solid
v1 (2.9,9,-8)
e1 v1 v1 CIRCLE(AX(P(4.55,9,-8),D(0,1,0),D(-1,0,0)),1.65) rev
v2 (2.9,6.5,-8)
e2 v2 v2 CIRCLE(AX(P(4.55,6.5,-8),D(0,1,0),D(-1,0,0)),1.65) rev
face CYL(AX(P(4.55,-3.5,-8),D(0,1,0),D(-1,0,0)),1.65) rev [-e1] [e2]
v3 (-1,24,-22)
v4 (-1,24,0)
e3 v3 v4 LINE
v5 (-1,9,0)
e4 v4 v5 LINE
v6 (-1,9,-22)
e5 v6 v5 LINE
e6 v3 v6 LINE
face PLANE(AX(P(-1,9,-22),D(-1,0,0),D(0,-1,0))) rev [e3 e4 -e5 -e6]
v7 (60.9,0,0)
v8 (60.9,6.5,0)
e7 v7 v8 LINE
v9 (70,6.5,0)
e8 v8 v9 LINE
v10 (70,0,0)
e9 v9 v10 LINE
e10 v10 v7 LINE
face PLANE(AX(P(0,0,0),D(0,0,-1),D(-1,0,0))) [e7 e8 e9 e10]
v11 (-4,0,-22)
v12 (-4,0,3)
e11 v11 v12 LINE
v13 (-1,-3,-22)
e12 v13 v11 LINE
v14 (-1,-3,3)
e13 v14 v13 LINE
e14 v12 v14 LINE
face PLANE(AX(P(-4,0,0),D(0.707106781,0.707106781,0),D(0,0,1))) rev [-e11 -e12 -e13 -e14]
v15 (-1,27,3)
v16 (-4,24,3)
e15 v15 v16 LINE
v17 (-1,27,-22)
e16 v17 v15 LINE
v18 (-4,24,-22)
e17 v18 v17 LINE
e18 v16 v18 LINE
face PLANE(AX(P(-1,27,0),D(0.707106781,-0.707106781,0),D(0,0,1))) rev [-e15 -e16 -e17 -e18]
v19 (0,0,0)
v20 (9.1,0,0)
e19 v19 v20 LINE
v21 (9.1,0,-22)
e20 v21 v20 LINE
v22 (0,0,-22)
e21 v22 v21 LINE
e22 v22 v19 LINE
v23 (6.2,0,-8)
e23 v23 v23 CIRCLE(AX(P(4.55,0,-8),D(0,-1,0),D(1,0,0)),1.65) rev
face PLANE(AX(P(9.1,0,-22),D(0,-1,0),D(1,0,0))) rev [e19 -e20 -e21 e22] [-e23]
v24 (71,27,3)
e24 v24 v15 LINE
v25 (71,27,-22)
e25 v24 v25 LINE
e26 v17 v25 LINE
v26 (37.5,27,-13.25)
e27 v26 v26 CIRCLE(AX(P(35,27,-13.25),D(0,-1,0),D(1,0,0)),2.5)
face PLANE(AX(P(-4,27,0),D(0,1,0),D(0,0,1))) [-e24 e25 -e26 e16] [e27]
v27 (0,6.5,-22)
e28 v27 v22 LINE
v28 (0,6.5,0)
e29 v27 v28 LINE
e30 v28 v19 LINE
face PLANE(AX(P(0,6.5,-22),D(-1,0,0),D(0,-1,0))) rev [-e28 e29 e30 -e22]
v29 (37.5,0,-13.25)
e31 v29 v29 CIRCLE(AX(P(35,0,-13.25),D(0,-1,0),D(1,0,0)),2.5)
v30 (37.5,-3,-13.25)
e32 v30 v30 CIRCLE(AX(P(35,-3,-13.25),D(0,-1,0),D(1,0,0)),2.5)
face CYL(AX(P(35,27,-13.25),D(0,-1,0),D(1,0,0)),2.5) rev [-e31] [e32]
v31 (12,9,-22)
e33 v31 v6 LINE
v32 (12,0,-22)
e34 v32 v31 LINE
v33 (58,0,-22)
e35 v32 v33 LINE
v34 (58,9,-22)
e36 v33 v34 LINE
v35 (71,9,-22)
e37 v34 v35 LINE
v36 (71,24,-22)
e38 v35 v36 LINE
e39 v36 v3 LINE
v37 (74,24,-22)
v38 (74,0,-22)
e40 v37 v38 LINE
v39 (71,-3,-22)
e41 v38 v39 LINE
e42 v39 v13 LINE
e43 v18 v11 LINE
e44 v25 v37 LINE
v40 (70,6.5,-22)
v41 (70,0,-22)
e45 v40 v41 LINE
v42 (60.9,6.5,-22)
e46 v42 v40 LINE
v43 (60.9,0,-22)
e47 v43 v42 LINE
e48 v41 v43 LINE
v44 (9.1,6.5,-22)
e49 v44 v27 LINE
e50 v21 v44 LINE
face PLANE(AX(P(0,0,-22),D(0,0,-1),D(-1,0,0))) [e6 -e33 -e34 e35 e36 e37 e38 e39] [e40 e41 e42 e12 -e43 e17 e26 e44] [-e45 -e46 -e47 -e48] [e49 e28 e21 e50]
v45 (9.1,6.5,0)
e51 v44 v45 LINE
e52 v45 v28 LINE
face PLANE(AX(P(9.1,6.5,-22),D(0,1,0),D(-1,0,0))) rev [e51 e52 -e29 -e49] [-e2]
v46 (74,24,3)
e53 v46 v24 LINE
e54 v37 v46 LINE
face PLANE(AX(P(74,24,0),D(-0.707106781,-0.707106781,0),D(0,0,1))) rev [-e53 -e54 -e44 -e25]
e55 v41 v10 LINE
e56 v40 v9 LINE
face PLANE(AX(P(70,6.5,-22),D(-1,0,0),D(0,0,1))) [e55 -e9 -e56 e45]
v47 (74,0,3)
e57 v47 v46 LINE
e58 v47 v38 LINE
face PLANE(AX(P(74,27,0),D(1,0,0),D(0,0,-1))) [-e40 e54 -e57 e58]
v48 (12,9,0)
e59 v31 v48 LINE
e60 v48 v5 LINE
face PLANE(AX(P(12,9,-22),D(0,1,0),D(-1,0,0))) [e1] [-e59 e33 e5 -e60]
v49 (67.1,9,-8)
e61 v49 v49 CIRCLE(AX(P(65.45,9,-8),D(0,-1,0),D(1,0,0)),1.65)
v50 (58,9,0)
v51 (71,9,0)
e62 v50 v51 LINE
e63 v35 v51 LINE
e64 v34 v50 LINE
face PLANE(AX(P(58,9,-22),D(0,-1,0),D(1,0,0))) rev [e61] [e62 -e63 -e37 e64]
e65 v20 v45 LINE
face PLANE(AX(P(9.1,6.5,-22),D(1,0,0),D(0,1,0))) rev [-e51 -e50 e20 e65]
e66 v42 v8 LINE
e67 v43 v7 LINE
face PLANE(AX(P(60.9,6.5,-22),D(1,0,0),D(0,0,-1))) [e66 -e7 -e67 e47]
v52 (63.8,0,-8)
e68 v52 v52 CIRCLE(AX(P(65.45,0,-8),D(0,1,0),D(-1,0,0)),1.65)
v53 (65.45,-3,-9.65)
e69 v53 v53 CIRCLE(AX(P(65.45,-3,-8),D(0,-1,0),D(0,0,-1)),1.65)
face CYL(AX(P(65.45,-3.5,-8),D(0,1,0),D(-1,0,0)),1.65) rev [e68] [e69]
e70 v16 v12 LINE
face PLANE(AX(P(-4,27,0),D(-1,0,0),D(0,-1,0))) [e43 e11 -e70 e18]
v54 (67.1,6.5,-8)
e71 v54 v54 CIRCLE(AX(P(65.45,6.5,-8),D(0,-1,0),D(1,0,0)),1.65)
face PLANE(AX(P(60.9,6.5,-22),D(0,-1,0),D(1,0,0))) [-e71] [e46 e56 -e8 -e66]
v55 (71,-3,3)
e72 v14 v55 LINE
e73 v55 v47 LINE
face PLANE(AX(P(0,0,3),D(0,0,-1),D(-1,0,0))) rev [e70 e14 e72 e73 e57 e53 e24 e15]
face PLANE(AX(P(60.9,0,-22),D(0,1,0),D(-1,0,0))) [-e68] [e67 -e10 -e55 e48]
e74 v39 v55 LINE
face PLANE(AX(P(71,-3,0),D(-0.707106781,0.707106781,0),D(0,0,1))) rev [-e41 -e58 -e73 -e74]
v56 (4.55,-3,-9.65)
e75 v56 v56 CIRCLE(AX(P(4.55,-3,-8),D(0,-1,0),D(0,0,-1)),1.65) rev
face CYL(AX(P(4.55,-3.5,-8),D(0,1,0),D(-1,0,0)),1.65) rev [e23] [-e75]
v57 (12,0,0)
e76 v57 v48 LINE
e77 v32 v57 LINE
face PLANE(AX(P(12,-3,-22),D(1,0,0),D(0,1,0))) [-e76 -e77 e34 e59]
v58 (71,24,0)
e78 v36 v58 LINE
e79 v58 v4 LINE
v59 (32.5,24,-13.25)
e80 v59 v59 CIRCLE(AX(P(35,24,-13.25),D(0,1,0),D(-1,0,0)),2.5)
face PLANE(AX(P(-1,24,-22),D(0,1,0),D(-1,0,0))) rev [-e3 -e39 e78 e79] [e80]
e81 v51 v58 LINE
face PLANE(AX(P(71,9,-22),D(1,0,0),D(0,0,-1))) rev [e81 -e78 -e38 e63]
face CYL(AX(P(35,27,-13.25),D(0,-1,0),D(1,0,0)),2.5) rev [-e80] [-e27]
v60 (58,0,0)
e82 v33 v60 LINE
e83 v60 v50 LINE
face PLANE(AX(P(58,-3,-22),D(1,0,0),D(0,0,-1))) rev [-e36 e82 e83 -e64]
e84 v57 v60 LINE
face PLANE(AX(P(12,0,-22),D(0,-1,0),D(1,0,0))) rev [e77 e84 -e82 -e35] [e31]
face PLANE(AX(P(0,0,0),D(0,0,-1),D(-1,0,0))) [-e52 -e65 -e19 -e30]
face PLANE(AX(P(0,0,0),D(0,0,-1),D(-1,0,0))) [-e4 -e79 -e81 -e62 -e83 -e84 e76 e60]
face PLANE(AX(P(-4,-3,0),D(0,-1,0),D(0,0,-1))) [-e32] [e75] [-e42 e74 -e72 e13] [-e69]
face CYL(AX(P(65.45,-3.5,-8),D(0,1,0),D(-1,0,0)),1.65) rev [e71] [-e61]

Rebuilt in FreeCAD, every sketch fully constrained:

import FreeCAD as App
import Part
import Sketcher
Q = App.Units.Quantity


def edges_at(feature, points):
    """Names of the edges that pass closest to the given points."""
    edges = feature.Shape.Edges
    near = lambda p: min(range(len(edges)), key=lambda i: edges[i].distToShape(Part.Vertex(*p))[0])
    return sorted({f"Edge{near(p) + 1}" for p in points})


def add_polygon(sketch, points):
    """Adds a closed chain of lines whose ends are joined by coincident constraints."""
    first, n = sketch.GeometryCount, len(points)
    for a, b in zip(points, points[1:] + points[:1]):
        sketch.addGeometry(Part.LineSegment(App.Vector(*a, 0), App.Vector(*b, 0)), False)
    for i in range(n):
        sketch.addConstraint(Sketcher.Constraint("Coincident", first + i, 2, first + (i + 1) % n, 1))

doc = App.newDocument("Part")
params = doc.addObject("Spreadsheet::Sheet", "Params")
for row, (alias, value) in enumerate([
    ("sketch1_width", "70 mm"),
    ("sketch1_height", "20 mm"),
    ("pad1_length", "3 mm"),
    ("sketch2_width", "78 mm"),
    ("sketch2_height", "30 mm"),
    ("pad2_length", "3 mm"),
    ("sketch3_width", "16 mm"),
    ("sketch3_height", "12 mm"),
    ("sketch3_width2", "9.1 mm"),
    ("sketch3_height2", "6.5 mm"),
    ("pad3_length", "22 mm"),
    ("sketch4_width", "46 mm"),
    ("sketch4_height", "3 mm"),
    ("pad4_length", "22 mm"),
    ("sketch5_width", "78 mm"),
    ("sketch5_width2", "3 mm"),
    ("sketch5_height", "18 mm"),
    ("sketch5_height2", "15 mm"),
    ("pad5_length", "22 mm"),
    ("chamfer_size", "3 mm"),
    ("sketch6_diameter", "5 mm"),
    ("sketch7_diameter", "3.3 mm"),
    ("pocket2_length", "20 mm"),
], start=1):
    params.set(f"A{row}", alias)
    params.set(f"B{row}", "=" + value)
    params.setAlias(f"B{row}", alias)

body = doc.addObject("PartDesign::Body", "Body")

sketch1 = body.newObject("Sketcher::SketchObject", "Sketch")
sketch1.AttachmentSupport = (doc.getObject("XY_Plane"), [""])
sketch1.MapMode = "FlatFace"
add_polygon(sketch1, [(0, 20), (0, 0), (70, 0), (70, 20)])
sketch1.addConstraint(Sketcher.Constraint("Vertical", 0))
sketch1.addConstraint(Sketcher.Constraint("Horizontal", 1))
sketch1.addConstraint(Sketcher.Constraint("Vertical", 2))
sketch1.addConstraint(Sketcher.Constraint("Horizontal", 3))
sketch1.addConstraint(Sketcher.Constraint("Coincident", 0, 2, -1, 1))
sketch1.addConstraint(Sketcher.Constraint("DistanceX", 1, 1, 1, 2, Q("70 mm")))
sketch1.addConstraint(Sketcher.Constraint("DistanceY", 0, 2, 0, 1, Q("20 mm")))
sketch1.setExpression("Constraints[9]", "Params.sketch1_width")
sketch1.setExpression("Constraints[10]", "Params.sketch1_height")
pad1 = body.newObject("PartDesign::Pad", "Pad")
pad1.Profile = sketch1
pad1.setExpression("Length", "Params.pad1_length")

sketch2 = body.newObject("Sketcher::SketchObject", "Sketch001")
sketch2.AttachmentSupport = (doc.getObject("XY_Plane"), [""])
sketch2.MapMode = "FlatFace"
sketch2.AttachmentOffset = App.Placement(App.Vector(0, 0, 3), App.Rotation())
add_polygon(sketch2, [(-4, 27), (-4, -3), (74, -3), (74, 27)])
sketch2.addConstraint(Sketcher.Constraint("Vertical", 0))
sketch2.addConstraint(Sketcher.Constraint("Horizontal", 1))
sketch2.addConstraint(Sketcher.Constraint("Vertical", 2))
sketch2.addConstraint(Sketcher.Constraint("Horizontal", 3))
sketch2.addConstraint(Sketcher.Constraint("DistanceX", 1, 1, 1, 2, Q("78 mm")))
sketch2.addConstraint(Sketcher.Constraint("DistanceY", 0, 2, 0, 1, Q("30 mm")))
sketch2.addConstraint(Sketcher.Constraint("DistanceX", 0, 2, -1, 1, Q("4 mm")))
sketch2.addConstraint(Sketcher.Constraint("DistanceY", 0, 2, -1, 1, Q("3 mm")))
sketch2.setExpression("Constraints[8]", "Params.sketch2_width")
sketch2.setExpression("Constraints[9]", "Params.sketch2_height")
pad2 = body.newObject("PartDesign::Pad", "Pad001")
pad2.Profile = sketch2
pad2.setExpression("Length", "Params.pad2_length")
pad2.Reversed = True

sketch3 = body.newObject("Sketcher::SketchObject", "Sketch002")
sketch3.AttachmentSupport = (doc.getObject("XY_Plane"), [""])
sketch3.MapMode = "FlatFace"
add_polygon(sketch3, [(74, 9), (74, -3), (58, -3), (58, 9)])
add_polygon(sketch3, [(61, 0), (70, 0), (70, 6), (61, 6)])
sketch3.addConstraint(Sketcher.Constraint("Vertical", 0))
sketch3.addConstraint(Sketcher.Constraint("Horizontal", 1))
sketch3.addConstraint(Sketcher.Constraint("Vertical", 2))
sketch3.addConstraint(Sketcher.Constraint("Horizontal", 3))
sketch3.addConstraint(Sketcher.Constraint("Horizontal", 4))
sketch3.addConstraint(Sketcher.Constraint("Vertical", 5))
sketch3.addConstraint(Sketcher.Constraint("Horizontal", 6))
sketch3.addConstraint(Sketcher.Constraint("Vertical", 7))
sketch3.addConstraint(Sketcher.Constraint("PointOnObject", 4, 2, -1))
sketch3.addConstraint(Sketcher.Constraint("DistanceX", 1, 2, 1, 1, Q("16 mm")))
sketch3.addConstraint(Sketcher.Constraint("DistanceY", 0, 2, 0, 1, Q("12 mm")))
sketch3.addConstraint(Sketcher.Constraint("DistanceX", 4, 1, 4, 2, Q("9.1 mm")))
sketch3.addConstraint(Sketcher.Constraint("DistanceY", 5, 1, 5, 2, Q("6.5 mm")))
sketch3.addConstraint(Sketcher.Constraint("DistanceX", -1, 1, 0, 2, Q("74 mm")))
sketch3.addConstraint(Sketcher.Constraint("DistanceY", 0, 2, -1, 1, Q("3 mm")))
sketch3.addConstraint(Sketcher.Constraint("DistanceX", -1, 1, 4, 2, Q("70 mm")))
sketch3.setExpression("Constraints[17]", "Params.sketch3_width")
sketch3.setExpression("Constraints[18]", "Params.sketch3_height")
sketch3.setExpression("Constraints[19]", "Params.sketch3_width2")
sketch3.setExpression("Constraints[20]", "Params.sketch3_height2")
pad3 = body.newObject("PartDesign::Pad", "Pad002")
pad3.Profile = sketch3
pad3.setExpression("Length", "Params.pad3_length")
pad3.Reversed = True
doc.recompute()

datumplane = body.newObject("PartDesign::Plane", "DatumPlane")
datumplane.AttachmentSupport = (doc.getObject("YZ_Plane"), [""])
datumplane.MapMode = "FlatFace"
datumplane.AttachmentOffset = App.Placement(App.Vector(0, 0, 35), App.Rotation())
mirrored = body.newObject("PartDesign::Mirrored", "Mirrored")
mirrored.Originals = [pad3]
mirrored.MirrorPlane = (datumplane, [""])
body.Tip = mirrored

sketch4 = body.newObject("Sketcher::SketchObject", "Sketch003")
sketch4.AttachmentSupport = (doc.getObject("XY_Plane"), [""])
sketch4.MapMode = "FlatFace"
add_polygon(sketch4, [(58, 0), (58, -3), (12, -3), (12, 0)])
sketch4.addConstraint(Sketcher.Constraint("Vertical", 0))
sketch4.addConstraint(Sketcher.Constraint("Horizontal", 1))
sketch4.addConstraint(Sketcher.Constraint("Vertical", 2))
sketch4.addConstraint(Sketcher.Constraint("Horizontal", 3))
sketch4.addConstraint(Sketcher.Constraint("PointOnObject", 2, 2, -1))
sketch4.addConstraint(Sketcher.Constraint("DistanceX", 1, 2, 1, 1, Q("46 mm")))
sketch4.addConstraint(Sketcher.Constraint("DistanceY", 0, 2, 0, 1, Q("3 mm")))
sketch4.addConstraint(Sketcher.Constraint("DistanceX", -1, 1, 0, 2, Q("58 mm")))
sketch4.setExpression("Constraints[9]", "Params.sketch4_width")
sketch4.setExpression("Constraints[10]", "Params.sketch4_height")
pad4 = body.newObject("PartDesign::Pad", "Pad003")
pad4.Profile = sketch4
pad4.setExpression("Length", "Params.pad4_length")
pad4.Reversed = True

sketch5 = body.newObject("Sketcher::SketchObject", "Sketch004")
sketch5.AttachmentSupport = (doc.getObject("XY_Plane"), [""])
sketch5.MapMode = "FlatFace"
add_polygon(sketch5, [(-4, 27), (74, 27), (74, 9), (71, 9), (71, 24), (-1, 24), (-1, 9), (-4, 9)])
sketch5.addConstraint(Sketcher.Constraint("Horizontal", 0))
sketch5.addConstraint(Sketcher.Constraint("Vertical", 1))
sketch5.addConstraint(Sketcher.Constraint("Horizontal", 2))
sketch5.addConstraint(Sketcher.Constraint("Vertical", 3))
sketch5.addConstraint(Sketcher.Constraint("Horizontal", 4))
sketch5.addConstraint(Sketcher.Constraint("Vertical", 5))
sketch5.addConstraint(Sketcher.Constraint("Horizontal", 6))
sketch5.addConstraint(Sketcher.Constraint("Vertical", 7))
sketch5.addConstraint(Sketcher.Constraint("Horizontal", 2, 2, 5, 2))
sketch5.addConstraint(Sketcher.Constraint("Equal", 2, 6))
sketch5.addConstraint(Sketcher.Constraint("DistanceX", 0, 1, 0, 2, Q("78 mm")))
sketch5.addConstraint(Sketcher.Constraint("DistanceX", 2, 2, 2, 1, Q("3 mm")))
sketch5.addConstraint(Sketcher.Constraint("DistanceY", 1, 2, 1, 1, Q("18 mm")))
sketch5.addConstraint(Sketcher.Constraint("DistanceY", 3, 1, 3, 2, Q("15 mm")))
sketch5.addConstraint(Sketcher.Constraint("DistanceX", -1, 1, 0, 2, Q("74 mm")))
sketch5.addConstraint(Sketcher.Constraint("DistanceY", -1, 1, 0, 2, Q("27 mm")))
sketch5.setExpression("Constraints[18]", "Params.sketch5_width")
sketch5.setExpression("Constraints[19]", "Params.sketch5_width2")
sketch5.setExpression("Constraints[20]", "Params.sketch5_height")
sketch5.setExpression("Constraints[21]", "Params.sketch5_height2")
pad5 = body.newObject("PartDesign::Pad", "Pad004")
pad5.Profile = sketch5
pad5.setExpression("Length", "Params.pad5_length")
pad5.Reversed = True
doc.recompute()

chamfer = body.newObject("PartDesign::Chamfer", "Chamfer")
chamfer.Base = (pad5, edges_at(pad5, [
    (-4, -3, -9.5),
    (-4, 27, -9.5),
    (74, 27, -9.5),
    (74, -3, -9.5),
]))
chamfer.setExpression("Size", "Params.chamfer_size")

sketch6 = body.newObject("Sketcher::SketchObject", "Sketch005")
sketch6.AttachmentSupport = (doc.getObject("XZ_Plane"), [""])
sketch6.MapMode = "FlatFace"
sketch6.AttachmentOffset = App.Placement(App.Vector(0, 0, -24), App.Rotation())
sketch6.addGeometry(Part.Circle(App.Vector(35, -13.2, 0), App.Vector(0, 0, 1), 2.5), False)
sketch6.addConstraint(Sketcher.Constraint("Diameter", 0, Q("5 mm")))
sketch6.addConstraint(Sketcher.Constraint("DistanceX", -1, 1, 0, 3, Q("35 mm")))
sketch6.addConstraint(Sketcher.Constraint("DistanceY", 0, 3, -1, 1, Q("13.25 mm")))
sketch6.setExpression("Constraints[0]", "Params.sketch6_diameter")
pocket1 = body.newObject("PartDesign::Pocket", "Pocket")
pocket1.Profile = sketch6
pocket1.Type = "ThroughAll"
pocket1.Midplane = True

sketch7 = body.newObject("Sketcher::SketchObject", "Sketch006")
sketch7.AttachmentSupport = (doc.getObject("XZ_Plane"), [""])
sketch7.MapMode = "FlatFace"
sketch7.AttachmentOffset = App.Placement(App.Vector(0, 0, -6.5), App.Rotation())
sketch7.addGeometry(Part.Circle(App.Vector(4.5, -8, 0), App.Vector(0, 0, 1), 1.6), False)
sketch7.addConstraint(Sketcher.Constraint("Diameter", 0, Q("3.3 mm")))
sketch7.addConstraint(Sketcher.Constraint("DistanceY", 0, 3, -1, 1, Q("8 mm")))
sketch7.addConstraint(Sketcher.Constraint("DistanceX", -1, 1, 0, 3, Q("4.55 mm")))
sketch7.setExpression("Constraints[0]", "Params.sketch7_diameter")
pocket2 = body.newObject("PartDesign::Pocket", "Pocket001")
pocket2.Profile = sketch7
pocket2.setExpression("Length", "Params.pocket2_length")
pocket2.Midplane = True
doc.recompute()

datumplane2 = body.newObject("PartDesign::Plane", "DatumPlane001")
datumplane2.AttachmentSupport = (doc.getObject("YZ_Plane"), [""])
datumplane2.MapMode = "FlatFace"
datumplane2.AttachmentOffset = App.Placement(App.Vector(0, 0, 35), App.Rotation())
mirrored2 = body.newObject("PartDesign::Mirrored", "Mirrored001")
mirrored2.Originals = [pocket2]
mirrored2.MirrorPlane = (datumplane2, [""])
body.Tip = mirrored2

doc.recompute()
